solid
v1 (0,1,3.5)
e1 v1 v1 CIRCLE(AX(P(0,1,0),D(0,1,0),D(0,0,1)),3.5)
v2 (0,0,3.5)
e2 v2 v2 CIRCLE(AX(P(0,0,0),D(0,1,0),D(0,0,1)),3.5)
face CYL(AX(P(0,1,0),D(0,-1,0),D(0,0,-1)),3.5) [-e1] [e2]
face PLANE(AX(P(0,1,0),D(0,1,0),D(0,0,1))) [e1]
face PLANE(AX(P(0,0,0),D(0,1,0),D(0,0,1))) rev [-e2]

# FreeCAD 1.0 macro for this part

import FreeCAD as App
import Part
import Sketcher
from FreeCAD import Vector
Q = App.Units.Quantity

doc = App.newDocument("Part")
body = doc.addObject("PartDesign::Body", "Body")

sketch1 = body.newObject("Sketcher::SketchObject", "Sketch")
sketch1.AttachmentSupport = (doc.getObject("XZ_Plane"), [""])
sketch1.MapMode = "FlatFace"
sketch1.addGeometry(Part.Circle(Vector(0, 0, 0), Vector(0, 0, 1), 3.5), False)
sketch1.addConstraint([
    Sketcher.Constraint("Coincident", 0, 3, -1, 1),
    Sketcher.Constraint("Diameter", 0, Q("7 mm")),
])
pad1 = body.newObject("PartDesign::Pad", "Pad")
pad1.Profile = sketch1
pad1.Length = 1
pad1.Reversed = True

doc.recompute()
